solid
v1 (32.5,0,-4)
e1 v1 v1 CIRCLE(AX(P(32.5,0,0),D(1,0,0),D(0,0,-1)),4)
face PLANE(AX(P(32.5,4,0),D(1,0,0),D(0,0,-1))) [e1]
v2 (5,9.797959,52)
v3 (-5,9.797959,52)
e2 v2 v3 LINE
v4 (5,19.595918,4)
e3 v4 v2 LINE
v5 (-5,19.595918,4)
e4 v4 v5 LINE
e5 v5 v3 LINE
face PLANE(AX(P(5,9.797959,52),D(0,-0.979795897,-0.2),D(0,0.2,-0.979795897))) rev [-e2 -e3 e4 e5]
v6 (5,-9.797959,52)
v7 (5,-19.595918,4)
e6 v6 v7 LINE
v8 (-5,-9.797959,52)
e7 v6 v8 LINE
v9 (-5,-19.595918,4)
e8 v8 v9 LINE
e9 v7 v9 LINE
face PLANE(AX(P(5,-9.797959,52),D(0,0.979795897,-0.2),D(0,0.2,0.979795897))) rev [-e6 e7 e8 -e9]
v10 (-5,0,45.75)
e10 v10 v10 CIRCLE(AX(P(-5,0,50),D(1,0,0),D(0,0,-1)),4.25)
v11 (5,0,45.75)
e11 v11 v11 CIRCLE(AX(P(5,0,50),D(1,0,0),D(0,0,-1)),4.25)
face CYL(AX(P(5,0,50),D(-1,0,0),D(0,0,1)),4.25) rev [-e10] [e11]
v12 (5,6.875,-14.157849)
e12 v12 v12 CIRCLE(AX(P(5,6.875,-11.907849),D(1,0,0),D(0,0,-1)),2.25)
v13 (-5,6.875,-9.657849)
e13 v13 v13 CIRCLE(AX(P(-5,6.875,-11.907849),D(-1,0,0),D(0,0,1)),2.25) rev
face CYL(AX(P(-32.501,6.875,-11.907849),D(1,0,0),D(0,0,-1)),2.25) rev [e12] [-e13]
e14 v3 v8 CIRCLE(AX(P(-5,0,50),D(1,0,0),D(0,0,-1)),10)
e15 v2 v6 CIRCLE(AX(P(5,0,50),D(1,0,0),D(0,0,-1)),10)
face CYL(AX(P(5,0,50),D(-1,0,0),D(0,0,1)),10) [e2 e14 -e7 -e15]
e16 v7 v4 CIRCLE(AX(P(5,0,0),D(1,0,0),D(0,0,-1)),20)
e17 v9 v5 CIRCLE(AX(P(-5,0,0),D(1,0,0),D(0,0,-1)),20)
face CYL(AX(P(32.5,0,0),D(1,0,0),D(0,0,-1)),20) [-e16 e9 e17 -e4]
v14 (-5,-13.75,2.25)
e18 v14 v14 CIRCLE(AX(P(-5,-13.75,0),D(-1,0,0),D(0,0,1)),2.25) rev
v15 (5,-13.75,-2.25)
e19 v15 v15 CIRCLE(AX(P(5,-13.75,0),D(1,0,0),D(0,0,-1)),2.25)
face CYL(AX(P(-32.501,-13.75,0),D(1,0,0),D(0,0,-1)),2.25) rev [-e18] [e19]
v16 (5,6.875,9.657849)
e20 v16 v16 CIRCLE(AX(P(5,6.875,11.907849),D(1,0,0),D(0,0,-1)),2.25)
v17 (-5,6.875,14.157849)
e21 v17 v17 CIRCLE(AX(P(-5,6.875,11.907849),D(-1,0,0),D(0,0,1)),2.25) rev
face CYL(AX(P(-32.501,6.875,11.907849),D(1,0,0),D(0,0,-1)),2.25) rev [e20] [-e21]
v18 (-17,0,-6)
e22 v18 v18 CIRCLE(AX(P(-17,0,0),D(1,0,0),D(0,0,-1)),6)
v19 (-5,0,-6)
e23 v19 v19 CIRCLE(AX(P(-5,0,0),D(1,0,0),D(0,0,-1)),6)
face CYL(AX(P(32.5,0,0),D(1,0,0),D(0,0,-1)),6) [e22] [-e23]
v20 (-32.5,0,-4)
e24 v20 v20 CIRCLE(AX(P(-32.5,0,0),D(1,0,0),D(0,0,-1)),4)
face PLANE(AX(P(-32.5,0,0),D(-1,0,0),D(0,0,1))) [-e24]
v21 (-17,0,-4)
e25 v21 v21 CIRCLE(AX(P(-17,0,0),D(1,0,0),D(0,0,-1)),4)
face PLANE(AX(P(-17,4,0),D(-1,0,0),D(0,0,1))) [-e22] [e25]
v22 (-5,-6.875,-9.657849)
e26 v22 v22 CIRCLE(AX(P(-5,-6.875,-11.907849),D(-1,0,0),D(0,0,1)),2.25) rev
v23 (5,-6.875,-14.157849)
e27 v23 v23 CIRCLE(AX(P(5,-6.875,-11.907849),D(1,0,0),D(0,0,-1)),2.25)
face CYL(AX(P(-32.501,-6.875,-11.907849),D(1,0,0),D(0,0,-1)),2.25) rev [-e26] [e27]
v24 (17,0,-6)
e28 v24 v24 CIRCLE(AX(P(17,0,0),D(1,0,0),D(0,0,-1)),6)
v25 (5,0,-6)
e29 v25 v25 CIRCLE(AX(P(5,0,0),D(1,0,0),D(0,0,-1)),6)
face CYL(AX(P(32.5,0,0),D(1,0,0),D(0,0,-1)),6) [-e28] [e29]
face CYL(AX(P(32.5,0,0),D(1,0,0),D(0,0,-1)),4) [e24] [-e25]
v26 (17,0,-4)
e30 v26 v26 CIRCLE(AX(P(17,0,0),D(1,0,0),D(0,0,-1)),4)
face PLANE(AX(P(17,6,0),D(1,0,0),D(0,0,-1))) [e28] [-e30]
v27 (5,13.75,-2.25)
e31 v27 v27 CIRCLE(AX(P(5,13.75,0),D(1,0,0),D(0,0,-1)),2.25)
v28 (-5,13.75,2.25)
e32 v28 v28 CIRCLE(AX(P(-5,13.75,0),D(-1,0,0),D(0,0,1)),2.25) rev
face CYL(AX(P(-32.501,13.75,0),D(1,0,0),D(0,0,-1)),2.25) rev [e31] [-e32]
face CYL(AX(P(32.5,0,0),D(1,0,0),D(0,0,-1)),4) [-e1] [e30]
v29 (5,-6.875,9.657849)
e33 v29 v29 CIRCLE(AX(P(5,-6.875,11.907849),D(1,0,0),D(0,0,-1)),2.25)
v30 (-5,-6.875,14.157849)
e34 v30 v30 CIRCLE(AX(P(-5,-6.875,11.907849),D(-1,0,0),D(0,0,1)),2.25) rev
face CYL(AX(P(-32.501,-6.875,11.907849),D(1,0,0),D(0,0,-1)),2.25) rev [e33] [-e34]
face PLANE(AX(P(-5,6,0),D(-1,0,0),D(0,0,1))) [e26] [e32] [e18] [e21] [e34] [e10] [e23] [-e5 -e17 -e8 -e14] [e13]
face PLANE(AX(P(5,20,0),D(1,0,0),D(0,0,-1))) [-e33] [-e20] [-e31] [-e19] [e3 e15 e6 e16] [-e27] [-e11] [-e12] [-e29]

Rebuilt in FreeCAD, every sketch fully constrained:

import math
import FreeCAD as App
import Part
import Sketcher


def add_polygon(sketch, points):
    """Adds a closed chain of lines whose ends are joined by coincident constraints."""
    first, n = sketch.GeometryCount, len(points)
    for a, b in zip(points, points[1:] + points[:1]):
        sketch.addGeometry(Part.LineSegment(App.Vector(*a, 0), App.Vector(*b, 0)), False)
    for i in range(n):
        sketch.addConstraint(Sketcher.Constraint("Coincident", first + i, 2, first + (i + 1) % n, 1))

doc = App.newDocument("Part")
params = doc.addObject("Spreadsheet::Sheet", "Params")
for row, (alias, value) in enumerate([
    ("sketch1_width", "65 mm"),
    ("sketch1_width2", "12 mm"),
    ("sketch1_width3", "10 mm"),
    ("sketch1_height", "4 mm"),
    ("sketch1_height2", "2 mm"),
    ("revolution_angle", "360 deg"),
    ("sketch2_radius", "10 mm"),
    ("sketch2_radius2", "20 mm"),
    ("sketch2_diameter", "8.5 mm"),
    ("pad1_length", "10 mm"),
    ("sketch3_diameter", "4.5 mm"),
    ("sketch4_diameter", "4.5 mm"),
    ("sketch5_diameter", "4.5 mm"),
    ("sketch6_diameter", "4.5 mm"),
    ("sketch7_diameter", "4.5 mm"),
    ("sketch8_diameter", "4.5 mm"),
], start=1):
    params.set(f"A{row}", alias)
    params.set(f"B{row}", "=" + value)
    params.setAlias(f"B{row}", alias)

body = doc.addObject("PartDesign::Body", "Body")

sketch1 = body.newObject("Sketcher::SketchObject", "Sketch")
sketch1.AttachmentSupport = (doc.getObject("XY_Plane"), [""])
sketch1.MapMode = "FlatFace"
add_polygon(sketch1, [(-32.5, 0), (32.5, 0), (32.5, 4), (17, 4), (17, 6), (5, 6), (5, 20), (-5, 20), (-5, 6), (-17, 6), (-17, 4), (-32.5, 4)])
sketch1.addConstraint([
    Sketcher.Constraint("Horizontal", 0),
    Sketcher.Constraint("Vertical", 1),
    Sketcher.Constraint("Horizontal", 2),
    Sketcher.Constraint("Vertical", 3),
    Sketcher.Constraint("Horizontal", 4),
    Sketcher.Constraint("Vertical", 5),
    Sketcher.Constraint("Horizontal", 6),
    Sketcher.Constraint("Vertical", 7),
    Sketcher.Constraint("Horizontal", 8),
    Sketcher.Constraint("Vertical", 9),
    Sketcher.Constraint("Horizontal", 10),
    Sketcher.Constraint("Vertical", 11),
    Sketcher.Constraint("Symmetric", 0, 2, 11, 2, -1, 1),
    Sketcher.Constraint("Symmetric", 4, 2, 7, 2, -2),
    Sketcher.Constraint("Symmetric", 2, 2, 9, 2, -2),
    Sketcher.Constraint("DistanceX", 0, 1, 0, 2, 65.0),
    Sketcher.Constraint("DistanceX", 4, 2, 4, 1, 12.0),
    Sketcher.Constraint("DistanceX", 6, 2, 6, 1, 10.0),
    Sketcher.Constraint("DistanceY", 1, 1, 1, 2, 4.0),
    Sketcher.Constraint("DistanceY", 3, 1, 3, 2, 2.0),
    Sketcher.Constraint("DistanceY", 5, 1, 5, 2, 14.0),
])
sketch1.setExpression("Constraints[27]", "Params.sketch1_width")
sketch1.setExpression("Constraints[28]", "Params.sketch1_width2")
sketch1.setExpression("Constraints[29]", "Params.sketch1_width3")
sketch1.setExpression("Constraints[30]", "Params.sketch1_height")
sketch1.setExpression("Constraints[31]", "Params.sketch1_height2")
revolution = body.newObject("PartDesign::Revolution", "Revolution")
revolution.Profile = sketch1
revolution.ReferenceAxis = (sketch1, ["H_Axis"])
revolution.setExpression("Angle", "Params.revolution_angle")

sketch2 = body.newObject("Sketcher::SketchObject", "Sketch001")
sketch2.AttachmentSupport = (doc.getObject("YZ_Plane"), [""])
sketch2.MapMode = "FlatFace"
sketch2.addGeometry([
    Part.LineSegment(App.Vector(19.6, 4, 0), App.Vector(9.8, 52, 0)),
    Part.ArcOfCircle(Part.Circle(App.Vector(0, 50, 0), App.Vector(0, 0, 1), 10), math.radians(12), math.radians(168)),
    Part.LineSegment(App.Vector(-9.8, 52, 0), App.Vector(-19.6, 4, 0)),
    Part.ArcOfCircle(Part.Circle(App.Vector(0, 0, 0), App.Vector(0, 0, 1), 20), math.radians(168), math.radians(372)),
    Part.Circle(App.Vector(0, 50, 0), App.Vector(0, 0, 1), 4.2),
], False)
sketch2.addConstraint([
    Sketcher.Constraint("Tangent", 0, 2, 1, 1),
    Sketcher.Constraint("Tangent", 1, 2, 2, 1),
    Sketcher.Constraint("Tangent", 2, 2, 3, 1),
    Sketcher.Constraint("Tangent", 3, 2, 0, 1),
    Sketcher.Constraint("Coincident", 3, 3, -1, 1),
    Sketcher.Constraint("Coincident", 4, 3, 1, 3),
    Sketcher.Constraint("PointOnObject", 1, 3, -2),
    Sketcher.Constraint("Radius", 1, 10.0),
    Sketcher.Constraint("Radius", 3, 20.0),
    Sketcher.Constraint("Diameter", 4, 8.5),
    Sketcher.Constraint("DistanceY", -1, 1, 1, 3, 50.0),
])
sketch2.setExpression("Constraints[7]", "Params.sketch2_radius")
sketch2.setExpression("Constraints[8]", "Params.sketch2_radius2")
sketch2.setExpression("Constraints[9]", "Params.sketch2_diameter")
pad1 = body.newObject("PartDesign::Pad", "Pad")
pad1.Profile = sketch2
pad1.setExpression("Length", "Params.pad1_length")
pad1.Midplane = True

sketch3 = body.newObject("Sketcher::SketchObject", "Sketch002")
sketch3.AttachmentSupport = (doc.getObject("YZ_Plane"), [""])
sketch3.MapMode = "FlatFace"
sketch3.AttachmentOffset = App.Placement(App.Vector(0, 0, 5), App.Rotation())
sketch3.addGeometry(Part.Circle(App.Vector(13.8, 0, 0), App.Vector(0, 0, 1), 2.2), False)
sketch3.addConstraint([
    Sketcher.Constraint("PointOnObject", 0, 3, -1),
    Sketcher.Constraint("Diameter", 0, 4.5),
    Sketcher.Constraint("DistanceX", -1, 1, 0, 3, 13.75),
])
sketch3.setExpression("Constraints[1]", "Params.sketch3_diameter")
pocket1 = body.newObject("PartDesign::Pocket", "Pocket")
pocket1.Profile = sketch3
pocket1.Type = "UpToFirst"

sketch4 = body.newObject("Sketcher::SketchObject", "Sketch003")
sketch4.AttachmentSupport = (doc.getObject("YZ_Plane"), [""])
sketch4.MapMode = "FlatFace"
sketch4.AttachmentOffset = App.Placement(App.Vector(0, 0, 5), App.Rotation())
sketch4.addGeometry(Part.Circle(App.Vector(6.9, -11.9, 0), App.Vector(0, 0, 1), 2.2), False)
sketch4.addConstraint([
    Sketcher.Constraint("Diameter", 0, 4.5),
    Sketcher.Constraint("DistanceX", -1, 1, 0, 3, 6.875),
    Sketcher.Constraint("DistanceY", 0, 3, -1, 1, 11.907849),
])
sketch4.setExpression("Constraints[0]", "Params.sketch4_diameter")
pocket2 = body.newObject("PartDesign::Pocket", "Pocket001")
pocket2.Profile = sketch4
pocket2.Type = "UpToFirst"

sketch5 = body.newObject("Sketcher::SketchObject", "Sketch004")
sketch5.AttachmentSupport = (doc.getObject("YZ_Plane"), [""])
sketch5.MapMode = "FlatFace"
sketch5.AttachmentOffset = App.Placement(App.Vector(0, 0, 5), App.Rotation())
sketch5.addGeometry(Part.Circle(App.Vector(-6.9, -11.9, 0), App.Vector(0, 0, 1), 2.2), False)
sketch5.addConstraint([
    Sketcher.Constraint("Diameter", 0, 4.5),
    Sketcher.Constraint("DistanceX", 0, 3, -1, 1, 6.875),
    Sketcher.Constraint("DistanceY", 0, 3, -1, 1, 11.907849),
])
sketch5.setExpression("Constraints[0]", "Params.sketch5_diameter")
pocket3 = body.newObject("PartDesign::Pocket", "Pocket002")
pocket3.Profile = sketch5
pocket3.Type = "UpToFirst"

sketch6 = body.newObject("Sketcher::SketchObject", "Sketch005")
sketch6.AttachmentSupport = (doc.getObject("YZ_Plane"), [""])
sketch6.MapMode = "FlatFace"
sketch6.AttachmentOffset = App.Placement(App.Vector(0, 0, 5), App.Rotation())
sketch6.addGeometry(Part.Circle(App.Vector(-13.8, 0, 0), App.Vector(0, 0, 1), 2.2), False)
sketch6.addConstraint([
    Sketcher.Constraint("PointOnObject", 0, 3, -1),
    Sketcher.Constraint("Diameter", 0, 4.5),
    Sketcher.Constraint("DistanceX", 0, 3, -1, 1, 13.75),
])
sketch6.setExpression("Constraints[1]", "Params.sketch6_diameter")
pocket4 = body.newObject("PartDesign::Pocket", "Pocket003")
pocket4.Profile = sketch6
pocket4.Type = "UpToFirst"

sketch7 = body.newObject("Sketcher::SketchObject", "Sketch006")
sketch7.AttachmentSupport = (doc.getObject("YZ_Plane"), [""])
sketch7.MapMode = "FlatFace"
sketch7.AttachmentOffset = App.Placement(App.Vector(0, 0, 5), App.Rotation())
sketch7.addGeometry(Part.Circle(App.Vector(-6.9, 11.9, 0), App.Vector(0, 0, 1), 2.2), False)
sketch7.addConstraint([
    Sketcher.Constraint("Diameter", 0, 4.5),
    Sketcher.Constraint("DistanceX", 0, 3, -1, 1, 6.875),
    Sketcher.Constraint("DistanceY", -1, 1, 0, 3, 11.907849),
])
sketch7.setExpression("Constraints[0]", "Params.sketch7_diameter")
pocket5 = body.newObject("PartDesign::Pocket", "Pocket004")
pocket5.Profile = sketch7
pocket5.Type = "UpToFirst"

sketch8 = body.newObject("Sketcher::SketchObject", "Sketch007")
sketch8.AttachmentSupport = (doc.getObject("YZ_Plane"), [""])
sketch8.MapMode = "FlatFace"
sketch8.AttachmentOffset = App.Placement(App.Vector(0, 0, 5), App.Rotation())
sketch8.addGeometry(Part.Circle(App.Vector(6.9, 11.9, 0), App.Vector(0, 0, 1), 2.2), False)
sketch8.addConstraint([
    Sketcher.Constraint("Diameter", 0, 4.5),
    Sketcher.Constraint("DistanceX", -1, 1, 0, 3, 6.875),
    Sketcher.Constraint("DistanceY", -1, 1, 0, 3, 11.907849),
])
sketch8.setExpression("Constraints[0]", "Params.sketch8_diameter")
pocket6 = body.newObject("PartDesign::Pocket", "Pocket005")
pocket6.Profile = sketch8
pocket6.Type = "UpToFirst"

doc.recompute()
